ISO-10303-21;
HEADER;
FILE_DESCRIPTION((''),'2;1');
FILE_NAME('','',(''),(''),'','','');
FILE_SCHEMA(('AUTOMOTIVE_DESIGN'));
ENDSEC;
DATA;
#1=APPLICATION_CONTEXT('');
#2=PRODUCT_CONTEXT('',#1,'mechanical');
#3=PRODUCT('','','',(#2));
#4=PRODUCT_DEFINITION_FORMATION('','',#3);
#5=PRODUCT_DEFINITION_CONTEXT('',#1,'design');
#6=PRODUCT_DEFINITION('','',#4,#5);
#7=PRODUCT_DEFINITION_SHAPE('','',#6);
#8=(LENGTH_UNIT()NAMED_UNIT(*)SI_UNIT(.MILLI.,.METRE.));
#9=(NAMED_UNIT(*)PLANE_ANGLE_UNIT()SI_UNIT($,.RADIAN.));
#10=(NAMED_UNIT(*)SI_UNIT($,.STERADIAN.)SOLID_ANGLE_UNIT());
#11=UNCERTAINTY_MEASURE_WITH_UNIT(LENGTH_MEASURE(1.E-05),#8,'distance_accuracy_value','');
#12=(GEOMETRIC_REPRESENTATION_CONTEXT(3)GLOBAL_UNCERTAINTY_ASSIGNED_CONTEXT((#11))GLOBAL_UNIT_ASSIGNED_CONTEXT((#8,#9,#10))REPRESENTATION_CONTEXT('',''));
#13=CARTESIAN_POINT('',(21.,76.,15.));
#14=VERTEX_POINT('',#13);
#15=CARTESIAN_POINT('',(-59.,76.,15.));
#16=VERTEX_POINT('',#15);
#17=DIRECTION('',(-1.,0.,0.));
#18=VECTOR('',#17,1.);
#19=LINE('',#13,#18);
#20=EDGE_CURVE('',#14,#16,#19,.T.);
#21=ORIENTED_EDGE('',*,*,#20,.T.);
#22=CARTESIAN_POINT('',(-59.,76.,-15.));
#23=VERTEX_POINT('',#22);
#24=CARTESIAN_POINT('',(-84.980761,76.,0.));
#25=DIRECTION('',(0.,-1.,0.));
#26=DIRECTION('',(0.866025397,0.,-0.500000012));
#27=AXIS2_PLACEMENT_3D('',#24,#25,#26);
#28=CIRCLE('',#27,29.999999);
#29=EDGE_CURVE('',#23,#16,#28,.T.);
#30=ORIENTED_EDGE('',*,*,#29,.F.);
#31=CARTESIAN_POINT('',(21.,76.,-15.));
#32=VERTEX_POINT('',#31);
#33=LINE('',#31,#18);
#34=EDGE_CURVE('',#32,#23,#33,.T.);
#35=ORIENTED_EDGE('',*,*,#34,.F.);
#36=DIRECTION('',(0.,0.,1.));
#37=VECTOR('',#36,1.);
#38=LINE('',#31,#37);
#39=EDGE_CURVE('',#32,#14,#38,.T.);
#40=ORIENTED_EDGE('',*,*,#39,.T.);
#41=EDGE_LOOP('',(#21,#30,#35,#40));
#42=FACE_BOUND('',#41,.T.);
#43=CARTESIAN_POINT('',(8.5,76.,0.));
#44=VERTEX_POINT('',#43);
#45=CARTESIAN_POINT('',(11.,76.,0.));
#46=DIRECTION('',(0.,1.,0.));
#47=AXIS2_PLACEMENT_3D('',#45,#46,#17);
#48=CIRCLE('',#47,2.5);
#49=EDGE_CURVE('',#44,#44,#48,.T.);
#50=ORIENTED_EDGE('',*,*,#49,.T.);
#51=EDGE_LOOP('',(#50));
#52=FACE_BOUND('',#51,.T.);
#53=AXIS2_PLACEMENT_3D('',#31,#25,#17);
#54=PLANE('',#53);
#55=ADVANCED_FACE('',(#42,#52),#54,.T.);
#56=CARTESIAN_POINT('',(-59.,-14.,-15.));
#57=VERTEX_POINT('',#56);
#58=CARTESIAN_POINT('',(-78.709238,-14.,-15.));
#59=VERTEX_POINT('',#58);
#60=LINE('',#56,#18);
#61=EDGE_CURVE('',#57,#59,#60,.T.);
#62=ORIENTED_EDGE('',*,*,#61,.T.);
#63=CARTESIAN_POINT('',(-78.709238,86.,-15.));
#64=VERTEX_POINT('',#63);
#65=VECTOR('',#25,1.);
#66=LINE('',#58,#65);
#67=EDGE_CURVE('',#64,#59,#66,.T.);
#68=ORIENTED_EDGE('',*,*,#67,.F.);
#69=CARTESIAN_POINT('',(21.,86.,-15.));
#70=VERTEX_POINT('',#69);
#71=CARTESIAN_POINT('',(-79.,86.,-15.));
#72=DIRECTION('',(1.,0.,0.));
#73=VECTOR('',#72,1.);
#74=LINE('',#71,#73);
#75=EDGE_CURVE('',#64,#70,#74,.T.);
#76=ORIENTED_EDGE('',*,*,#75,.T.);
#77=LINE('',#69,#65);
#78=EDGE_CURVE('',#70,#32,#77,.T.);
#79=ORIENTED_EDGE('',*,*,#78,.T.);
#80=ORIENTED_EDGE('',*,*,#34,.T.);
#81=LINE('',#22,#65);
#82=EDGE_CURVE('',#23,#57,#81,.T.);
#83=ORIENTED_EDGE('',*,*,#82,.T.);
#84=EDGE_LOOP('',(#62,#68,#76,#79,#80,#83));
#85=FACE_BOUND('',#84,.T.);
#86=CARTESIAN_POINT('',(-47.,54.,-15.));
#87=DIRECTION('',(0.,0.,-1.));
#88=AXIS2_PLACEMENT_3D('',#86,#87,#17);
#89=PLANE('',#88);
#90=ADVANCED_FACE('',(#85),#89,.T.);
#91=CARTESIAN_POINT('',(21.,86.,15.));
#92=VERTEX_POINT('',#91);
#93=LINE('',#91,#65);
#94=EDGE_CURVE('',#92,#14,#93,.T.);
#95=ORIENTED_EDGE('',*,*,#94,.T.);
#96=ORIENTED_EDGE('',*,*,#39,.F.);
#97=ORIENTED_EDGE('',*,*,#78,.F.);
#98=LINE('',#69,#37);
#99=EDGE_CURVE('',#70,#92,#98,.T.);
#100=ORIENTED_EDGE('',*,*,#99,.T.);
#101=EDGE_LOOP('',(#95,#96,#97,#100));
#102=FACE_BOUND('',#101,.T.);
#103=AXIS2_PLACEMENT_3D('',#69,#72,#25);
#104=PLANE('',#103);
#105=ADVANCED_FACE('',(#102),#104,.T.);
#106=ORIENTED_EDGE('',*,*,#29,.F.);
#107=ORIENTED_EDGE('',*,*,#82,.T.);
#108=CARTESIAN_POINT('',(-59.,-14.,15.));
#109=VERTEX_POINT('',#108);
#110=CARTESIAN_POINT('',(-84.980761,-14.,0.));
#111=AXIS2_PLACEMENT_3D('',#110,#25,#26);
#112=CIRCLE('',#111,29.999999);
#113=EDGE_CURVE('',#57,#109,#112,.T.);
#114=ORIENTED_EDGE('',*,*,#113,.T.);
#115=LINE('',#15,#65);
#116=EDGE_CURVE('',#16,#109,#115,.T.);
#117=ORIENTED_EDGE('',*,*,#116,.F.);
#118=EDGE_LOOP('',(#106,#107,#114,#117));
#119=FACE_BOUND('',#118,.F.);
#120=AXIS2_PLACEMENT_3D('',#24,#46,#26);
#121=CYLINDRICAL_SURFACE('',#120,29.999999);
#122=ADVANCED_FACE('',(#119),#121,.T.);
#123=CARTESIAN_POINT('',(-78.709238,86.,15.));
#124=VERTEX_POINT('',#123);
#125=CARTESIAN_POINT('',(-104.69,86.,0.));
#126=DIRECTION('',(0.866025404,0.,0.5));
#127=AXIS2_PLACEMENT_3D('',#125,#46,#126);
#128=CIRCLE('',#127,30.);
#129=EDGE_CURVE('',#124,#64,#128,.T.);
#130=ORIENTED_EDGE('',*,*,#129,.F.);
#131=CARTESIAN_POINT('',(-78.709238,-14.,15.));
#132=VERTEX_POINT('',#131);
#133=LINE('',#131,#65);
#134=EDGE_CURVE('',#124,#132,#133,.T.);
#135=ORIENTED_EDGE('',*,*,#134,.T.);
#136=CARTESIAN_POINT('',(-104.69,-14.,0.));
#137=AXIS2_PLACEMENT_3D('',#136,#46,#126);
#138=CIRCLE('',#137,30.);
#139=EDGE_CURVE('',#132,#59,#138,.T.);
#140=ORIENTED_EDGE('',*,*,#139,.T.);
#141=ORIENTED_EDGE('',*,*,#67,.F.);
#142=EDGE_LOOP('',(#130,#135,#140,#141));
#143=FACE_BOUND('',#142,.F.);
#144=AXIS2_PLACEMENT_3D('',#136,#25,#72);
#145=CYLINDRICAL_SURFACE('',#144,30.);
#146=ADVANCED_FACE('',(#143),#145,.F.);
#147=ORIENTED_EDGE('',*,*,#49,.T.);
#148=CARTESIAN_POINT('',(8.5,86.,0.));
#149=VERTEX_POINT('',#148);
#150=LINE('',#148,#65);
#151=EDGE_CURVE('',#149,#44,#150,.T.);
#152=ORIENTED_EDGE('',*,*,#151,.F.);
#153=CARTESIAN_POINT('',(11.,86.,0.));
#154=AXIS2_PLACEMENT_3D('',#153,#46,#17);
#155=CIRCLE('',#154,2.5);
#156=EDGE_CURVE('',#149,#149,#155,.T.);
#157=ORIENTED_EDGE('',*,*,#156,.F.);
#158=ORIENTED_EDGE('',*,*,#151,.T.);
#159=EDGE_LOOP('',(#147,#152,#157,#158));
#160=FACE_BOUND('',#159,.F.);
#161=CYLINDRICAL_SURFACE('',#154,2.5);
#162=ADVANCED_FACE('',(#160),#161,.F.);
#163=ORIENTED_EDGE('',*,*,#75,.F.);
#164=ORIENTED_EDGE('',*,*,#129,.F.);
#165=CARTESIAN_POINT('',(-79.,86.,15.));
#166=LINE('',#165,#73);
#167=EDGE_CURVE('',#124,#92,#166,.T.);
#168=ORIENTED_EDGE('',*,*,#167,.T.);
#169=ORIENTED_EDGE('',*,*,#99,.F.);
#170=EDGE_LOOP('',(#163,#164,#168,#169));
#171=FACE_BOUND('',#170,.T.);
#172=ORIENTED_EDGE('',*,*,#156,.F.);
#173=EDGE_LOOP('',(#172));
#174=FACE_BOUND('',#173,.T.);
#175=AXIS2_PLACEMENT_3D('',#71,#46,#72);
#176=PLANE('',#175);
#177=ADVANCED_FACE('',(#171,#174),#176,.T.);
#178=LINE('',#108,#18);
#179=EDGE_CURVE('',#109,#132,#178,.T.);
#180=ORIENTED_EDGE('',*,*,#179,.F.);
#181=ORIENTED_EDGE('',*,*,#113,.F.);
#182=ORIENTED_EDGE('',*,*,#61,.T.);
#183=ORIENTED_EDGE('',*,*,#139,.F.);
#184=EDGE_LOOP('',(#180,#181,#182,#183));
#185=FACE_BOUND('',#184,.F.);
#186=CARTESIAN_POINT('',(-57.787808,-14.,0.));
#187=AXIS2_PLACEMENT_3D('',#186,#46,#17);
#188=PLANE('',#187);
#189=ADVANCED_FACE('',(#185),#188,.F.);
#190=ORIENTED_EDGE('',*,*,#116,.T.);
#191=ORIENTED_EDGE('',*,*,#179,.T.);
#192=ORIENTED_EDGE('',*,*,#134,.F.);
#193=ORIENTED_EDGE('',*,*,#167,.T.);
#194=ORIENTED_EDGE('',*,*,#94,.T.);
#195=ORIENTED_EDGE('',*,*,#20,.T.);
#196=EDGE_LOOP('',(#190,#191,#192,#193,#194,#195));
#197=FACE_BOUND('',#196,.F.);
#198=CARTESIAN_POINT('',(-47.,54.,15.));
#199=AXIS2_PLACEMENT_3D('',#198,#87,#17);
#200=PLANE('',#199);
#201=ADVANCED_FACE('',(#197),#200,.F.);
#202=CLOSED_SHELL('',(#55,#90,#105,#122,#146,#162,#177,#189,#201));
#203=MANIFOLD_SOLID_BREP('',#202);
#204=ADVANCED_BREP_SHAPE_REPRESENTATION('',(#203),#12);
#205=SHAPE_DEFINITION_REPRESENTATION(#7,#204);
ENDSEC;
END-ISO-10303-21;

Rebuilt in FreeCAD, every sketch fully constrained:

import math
import FreeCAD as App
import Part
import Sketcher

doc = App.newDocument("Part")
params = doc.addObject("Spreadsheet::Sheet", "Params")
for row, (alias, value) in enumerate([
    ("sketch1_width", "20 mm"),
    ("sketch1_width2", "80 mm"),
    ("sketch1_height", "90 mm"),
    ("pad1_length", "30 mm"),
    ("sketch2_diameter", "5 mm"),
    ("sketch3_diameter", "60 mm"),
    ("sketch4_radius", "29.999999 mm"),
    ("sketch4_height", "30 mm"),
    ("pad2_length", "90 mm"),
], start=1):
    params.set(f"A{row}", alias)
    params.set(f"B{row}", "=" + value)
    params.setAlias(f"B{row}", alias)

body = doc.addObject("PartDesign::Body", "Body")

# Sketch on XY plane
sketch1 = body.newObject("Sketcher::SketchObject", "Sketch")
sketch1.AttachmentSupport = (doc.getObject("XY_Plane"), [""])
sketch1.MapMode = "FlatFace"
sketch1.addGeometry(Part.LineSegment(App.Vector(-10, -50, 0), App.Vector(10, -50, 0)), False)
sketch1.addGeometry(Part.LineSegment(App.Vector(10, -50, 0), App.Vector(10, 40, 0)), False)
sketch1.addGeometry(Part.LineSegment(App.Vector(10, 40, 0), App.Vector(90, 40, 0)), False)
sketch1.addGeometry(Part.LineSegment(App.Vector(90, 40, 0), App.Vector(90, 50, 0)), False)
sketch1.addGeometry(Part.LineSegment(App.Vector(90, 50, 0), App.Vector(-10, 50, 0)), False)
sketch1.addGeometry(Part.LineSegment(App.Vector(-10, 50, 0), App.Vector(-10, -50, 0)), False)
sketch1.addConstraint(Sketcher.Constraint("Coincident", 0, 2, 1, 1))
sketch1.addConstraint(Sketcher.Constraint("Coincident", 1, 2, 2, 1))
sketch1.addConstraint(Sketcher.Constraint("Coincident", 2, 2, 3, 1))
sketch1.addConstraint(Sketcher.Constraint("Coincident", 3, 2, 4, 1))
sketch1.addConstraint(Sketcher.Constraint("Coincident", 4, 2, 5, 1))
sketch1.addConstraint(Sketcher.Constraint("Coincident", 5, 2, 0, 1))
sketch1.addConstraint(Sketcher.Constraint("Horizontal", 0))
sketch1.addConstraint(Sketcher.Constraint("Vertical", 1))
sketch1.addConstraint(Sketcher.Constraint("Horizontal", 2))
sketch1.addConstraint(Sketcher.Constraint("Vertical", 3))
sketch1.addConstraint(Sketcher.Constraint("Horizontal", 4))
sketch1.addConstraint(Sketcher.Constraint("Vertical", 5))
sketch1.addConstraint(Sketcher.Constraint("Symmetric", 0, 2, 4, 2, -1, 1))
sketch1.addConstraint(Sketcher.Constraint("Equal", 4, 5))
sketch1.addConstraint(Sketcher.Constraint("DistanceX", 0, 1, 0, 2, 20.0))
sketch1.addConstraint(Sketcher.Constraint("DistanceX", 2, 1, 2, 2, 80.0))
sketch1.addConstraint(Sketcher.Constraint("DistanceY", 1, 1, 1, 2, 90.0))
sketch1.setExpression("Constraints[14]", "Params.sketch1_width")
sketch1.setExpression("Constraints[15]", "Params.sketch1_width2")
sketch1.setExpression("Constraints[16]", "Params.sketch1_height")
pad1 = body.newObject("PartDesign::Pad", "Pad")
pad1.Profile = sketch1
pad1.setExpression("Length", "Params.pad1_length")

# Sketch on XZ plane
sketch2 = body.newObject("Sketcher::SketchObject", "Sketch001")
sketch2.AttachmentSupport = (doc.getObject("XZ_Plane"), [""])
sketch2.MapMode = "FlatFace"
sketch2.AttachmentOffset = App.Placement(App.Vector(0, 0, -50), App.Rotation())
sketch2.addGeometry(Part.Circle(App.Vector(80, 15, 0), App.Vector(0, 0, 1), 2.5), False)
sketch2.addConstraint(Sketcher.Constraint("Diameter", 0, 5.0))
sketch2.addConstraint(Sketcher.Constraint("DistanceX", -1, 1, 0, 3, 80.0))
sketch2.addConstraint(Sketcher.Constraint("DistanceY", -1, 1, 0, 3, 15.0))
sketch2.setExpression("Constraints[0]", "Params.sketch2_diameter")
pocket1 = body.newObject("PartDesign::Pocket", "Pocket")
pocket1.Profile = sketch2
pocket1.Type = "ThroughAll"
pocket1.Reversed = True

# Sketch on XZ plane
sketch3 = body.newObject("Sketcher::SketchObject", "Sketch002")
sketch3.AttachmentSupport = (doc.getObject("XZ_Plane"), [""])
sketch3.MapMode = "FlatFace"
sketch3.AttachmentOffset = App.Placement(App.Vector(0, 0, 50), App.Rotation())
sketch3.addGeometry(Part.Circle(App.Vector(-35.69, 15, 0), App.Vector(0, 0, 1), 30), False)
sketch3.addConstraint(Sketcher.Constraint("Diameter", 0, 60.0))
sketch3.addConstraint(Sketcher.Constraint("DistanceY", -1, 1, 0, 3, 15.0))
sketch3.addConstraint(Sketcher.Constraint("DistanceX", 0, 3, -1, 1, 35.69))
sketch3.setExpression("Constraints[0]", "Params.sketch3_diameter")
pocket2 = body.newObject("PartDesign::Pocket", "Pocket001")
pocket2.Profile = sketch3
pocket2.Type = "ThroughAll"

# Sketch on XZ plane
sketch4 = body.newObject("Sketcher::SketchObject", "Sketch003")
sketch4.AttachmentSupport = (doc.getObject("XZ_Plane"), [""])
sketch4.MapMode = "FlatFace"
sketch4.AttachmentOffset = App.Placement(App.Vector(0, 0, -40), App.Rotation())
sketch4.addGeometry(Part.LineSegment(App.Vector(10, 30, 0), App.Vector(10, 0, 0)), False)
sketch4.addGeometry(Part.ArcOfCircle(Part.Circle(App.Vector(-15.980761, 15, 0), App.Vector(0, 0, 1), 29.999999), math.radians(-30.000001), math.radians(30.000001)), False)
sketch4.addConstraint(Sketcher.Constraint("Coincident", 0, 1, 1, 2))
sketch4.addConstraint(Sketcher.Constraint("Coincident", 1, 1, 0, 2))
sketch4.addConstraint(Sketcher.Constraint("Vertical", 0))
sketch4.addConstraint(Sketcher.Constraint("PointOnObject", 1, 1, -1))
sketch4.addConstraint(Sketcher.Constraint("Radius", 1, 29.999999))
sketch4.addConstraint(Sketcher.Constraint("DistanceY", 0, 2, 0, 1, 30.0))
sketch4.addConstraint(Sketcher.Constraint("DistanceX", -1, 1, 0, 1, 10.0))
sketch4.setExpression("Constraints[4]", "Params.sketch4_radius")
sketch4.setExpression("Constraints[5]", "Params.sketch4_height")
pad2 = body.newObject("PartDesign::Pad", "Pad001")
pad2.Profile = sketch4
pad2.setExpression("Length", "Params.pad2_length")
body2 = doc.addObject("PartDesign::Body", "Body001")
doc.recompute()

body.Placement = App.Placement(App.Vector(-69, 36, -15), App.Rotation(App.Vector(0, 0, 1), 0))
boolean = body2.newObject("PartDesign::Boolean", "Boolean")
boolean.Type = "Fuse"
boolean.addObjects([body])

doc.recompute()
